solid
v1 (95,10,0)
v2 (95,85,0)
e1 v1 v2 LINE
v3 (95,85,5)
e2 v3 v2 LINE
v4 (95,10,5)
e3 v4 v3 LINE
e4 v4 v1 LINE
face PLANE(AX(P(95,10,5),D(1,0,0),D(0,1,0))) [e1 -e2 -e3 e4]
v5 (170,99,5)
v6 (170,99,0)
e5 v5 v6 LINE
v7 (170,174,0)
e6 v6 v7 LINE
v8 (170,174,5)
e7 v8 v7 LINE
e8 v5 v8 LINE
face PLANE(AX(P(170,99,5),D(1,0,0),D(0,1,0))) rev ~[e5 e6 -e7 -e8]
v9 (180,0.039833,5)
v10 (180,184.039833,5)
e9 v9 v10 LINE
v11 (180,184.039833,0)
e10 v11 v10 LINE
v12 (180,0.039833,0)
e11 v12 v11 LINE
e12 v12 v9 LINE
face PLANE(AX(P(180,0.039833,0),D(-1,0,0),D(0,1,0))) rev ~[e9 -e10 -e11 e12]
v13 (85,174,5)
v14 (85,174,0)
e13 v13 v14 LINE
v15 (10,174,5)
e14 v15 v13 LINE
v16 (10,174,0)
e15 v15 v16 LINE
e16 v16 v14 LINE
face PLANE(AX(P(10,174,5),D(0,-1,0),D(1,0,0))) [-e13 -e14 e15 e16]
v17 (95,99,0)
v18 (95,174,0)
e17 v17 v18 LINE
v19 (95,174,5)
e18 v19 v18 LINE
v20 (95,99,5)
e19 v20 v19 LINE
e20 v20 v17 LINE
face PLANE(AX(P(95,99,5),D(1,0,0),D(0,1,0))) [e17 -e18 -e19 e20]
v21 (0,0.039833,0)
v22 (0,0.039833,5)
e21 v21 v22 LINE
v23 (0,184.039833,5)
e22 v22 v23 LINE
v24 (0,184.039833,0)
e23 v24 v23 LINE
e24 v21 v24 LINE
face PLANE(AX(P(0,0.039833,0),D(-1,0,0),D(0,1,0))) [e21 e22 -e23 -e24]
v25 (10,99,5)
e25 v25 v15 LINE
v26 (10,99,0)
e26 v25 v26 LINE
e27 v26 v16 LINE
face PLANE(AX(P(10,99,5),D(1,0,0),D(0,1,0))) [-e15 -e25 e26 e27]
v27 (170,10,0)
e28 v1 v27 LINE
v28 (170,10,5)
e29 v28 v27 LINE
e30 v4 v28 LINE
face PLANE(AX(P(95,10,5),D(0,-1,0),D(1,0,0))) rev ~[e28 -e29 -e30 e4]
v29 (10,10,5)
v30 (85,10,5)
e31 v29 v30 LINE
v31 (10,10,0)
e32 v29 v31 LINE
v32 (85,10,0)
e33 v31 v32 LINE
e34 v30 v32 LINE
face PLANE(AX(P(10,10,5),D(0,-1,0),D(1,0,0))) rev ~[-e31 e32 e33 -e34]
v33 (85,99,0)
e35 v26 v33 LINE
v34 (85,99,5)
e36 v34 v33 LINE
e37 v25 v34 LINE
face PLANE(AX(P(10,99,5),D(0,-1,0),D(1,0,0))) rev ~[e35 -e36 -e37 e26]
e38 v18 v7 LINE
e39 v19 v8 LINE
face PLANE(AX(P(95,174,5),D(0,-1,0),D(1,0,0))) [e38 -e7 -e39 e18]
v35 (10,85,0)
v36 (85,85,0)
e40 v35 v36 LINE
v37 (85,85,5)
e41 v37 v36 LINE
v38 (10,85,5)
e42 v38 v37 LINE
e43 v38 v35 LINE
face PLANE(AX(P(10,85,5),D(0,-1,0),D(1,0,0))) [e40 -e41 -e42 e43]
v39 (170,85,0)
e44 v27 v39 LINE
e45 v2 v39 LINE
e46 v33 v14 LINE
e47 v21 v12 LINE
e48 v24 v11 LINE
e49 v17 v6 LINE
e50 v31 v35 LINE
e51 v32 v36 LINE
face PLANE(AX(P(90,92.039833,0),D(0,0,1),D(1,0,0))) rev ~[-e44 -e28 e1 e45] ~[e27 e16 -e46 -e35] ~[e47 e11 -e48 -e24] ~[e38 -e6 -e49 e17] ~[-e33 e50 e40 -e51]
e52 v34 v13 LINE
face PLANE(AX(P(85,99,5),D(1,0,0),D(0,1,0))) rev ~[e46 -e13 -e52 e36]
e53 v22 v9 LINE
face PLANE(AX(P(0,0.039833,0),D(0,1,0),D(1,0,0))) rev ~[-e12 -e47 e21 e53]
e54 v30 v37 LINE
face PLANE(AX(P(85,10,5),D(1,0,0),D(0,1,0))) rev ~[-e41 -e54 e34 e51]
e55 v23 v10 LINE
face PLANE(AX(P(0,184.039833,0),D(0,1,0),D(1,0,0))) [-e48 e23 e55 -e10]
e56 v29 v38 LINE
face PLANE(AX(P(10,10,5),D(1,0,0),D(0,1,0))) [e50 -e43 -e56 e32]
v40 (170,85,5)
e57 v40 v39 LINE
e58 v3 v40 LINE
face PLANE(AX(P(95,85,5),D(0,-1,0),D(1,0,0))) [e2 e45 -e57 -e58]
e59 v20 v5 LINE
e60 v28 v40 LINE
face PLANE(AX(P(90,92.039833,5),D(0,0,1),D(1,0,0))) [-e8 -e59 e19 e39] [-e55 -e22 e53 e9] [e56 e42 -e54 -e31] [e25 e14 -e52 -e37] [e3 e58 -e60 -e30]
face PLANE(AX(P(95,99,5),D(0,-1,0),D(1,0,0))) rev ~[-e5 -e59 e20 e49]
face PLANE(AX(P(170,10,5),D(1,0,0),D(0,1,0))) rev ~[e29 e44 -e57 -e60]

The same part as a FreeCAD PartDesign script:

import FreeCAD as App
import Part
import Sketcher

V = App.Vector
Q = App.Units.Quantity

doc = App.newDocument("Part")
body = doc.addObject("PartDesign::Body", "Body")

# Sketch on XY plane
sketch1 = doc.addObject("Sketcher::SketchObject", "Sketch")
body.addObject(sketch1)
sketch1.AttachmentSupport = (doc.XY_Plane, [""])
sketch1.MapMode = "FlatFace"
sketch1.addGeometry(Part.LineSegment(V(0, 184, 0), V(0, 0, 0)), False)
sketch1.addGeometry(Part.LineSegment(V(0, 0, 0), V(180, 0, 0)), False)
sketch1.addGeometry(Part.LineSegment(V(180, 0, 0), V(180, 184, 0)), False)
sketch1.addGeometry(Part.LineSegment(V(180, 184, 0), V(0, 184, 0)), False)
sketch1.addConstraint(Sketcher.Constraint("Coincident", 0, 2, 1, 1))
sketch1.addConstraint(Sketcher.Constraint("Coincident", 1, 2, 2, 1))
sketch1.addConstraint(Sketcher.Constraint("Coincident", 2, 2, 3, 1))
sketch1.addConstraint(Sketcher.Constraint("Coincident", 3, 2, 0, 1))
sketch1.addConstraint(Sketcher.Constraint("Vertical", 0))
sketch1.addConstraint(Sketcher.Constraint("Horizontal", 1))
sketch1.addConstraint(Sketcher.Constraint("Vertical", 2))
sketch1.addConstraint(Sketcher.Constraint("Horizontal", 3))
sketch1.addConstraint(Sketcher.Constraint("PointOnObject", 0, 2, -2))
sketch1.addConstraint(Sketcher.Constraint("DistanceX", 1, 1, 1, 2, Q("180 mm")))
sketch1.addConstraint(Sketcher.Constraint("DistanceY", 0, 2, 0, 1, Q("184 mm")))
sketch1.addConstraint(Sketcher.Constraint("DistanceY", -1, 1, 0, 2, Q("0.039833 mm")))
pad1 = doc.addObject("PartDesign::Pad", "Pad")
body.addObject(pad1)
pad1.Profile = sketch1
pad1.Length = 5

# Sketch on XY plane
sketch2 = doc.addObject("Sketcher::SketchObject", "Sketch001")
body.addObject(sketch2)
sketch2.AttachmentSupport = (doc.XY_Plane, [""])
sketch2.MapMode = "FlatFace"
sketch2.AttachmentOffset = App.Placement(V(0, 0, 5), App.Rotation())
sketch2.addGeometry(Part.LineSegment(V(10, 174, 0), V(10, 99, 0)), False)
sketch2.addGeometry(Part.LineSegment(V(10, 99, 0), V(85, 99, 0)), False)
sketch2.addGeometry(Part.LineSegment(V(85, 99, 0), V(85, 174, 0)), False)
sketch2.addGeometry(Part.LineSegment(V(85, 174, 0), V(10, 174, 0)), False)
sketch2.addConstraint(Sketcher.Constraint("Coincident", 0, 2, 1, 1))
sketch2.addConstraint(Sketcher.Constraint("Coincident", 1, 2, 2, 1))
sketch2.addConstraint(Sketcher.Constraint("Coincident", 2, 2, 3, 1))
sketch2.addConstraint(Sketcher.Constraint("Coincident", 3, 2, 0, 1))
sketch2.addConstraint(Sketcher.Constraint("Vertical", 0))
sketch2.addConstraint(Sketcher.Constraint("Horizontal", 1))
sketch2.addConstraint(Sketcher.Constraint("Vertical", 2))
sketch2.addConstraint(Sketcher.Constraint("Horizontal", 3))
sketch2.addConstraint(Sketcher.Constraint("Equal", 3, 0))
sketch2.addConstraint(Sketcher.Constraint("DistanceX", 1, 1, 1, 2, Q("75 mm")))
sketch2.addConstraint(Sketcher.Constraint("DistanceX", -1, 1, 0, 2, Q("10 mm")))
sketch2.addConstraint(Sketcher.Constraint("DistanceY", -1, 1, 0, 2, Q("99 mm")))
pocket1 = doc.addObject("PartDesign::Pocket", "Pocket")
body.addObject(pocket1)
pocket1.Profile = sketch2
pocket1.Length = 5

# Sketch on XY plane
sketch3 = doc.addObject("Sketcher::SketchObject", "Sketch002")
body.addObject(sketch3)
sketch3.AttachmentSupport = (doc.XY_Plane, [""])
sketch3.MapMode = "FlatFace"
sketch3.AttachmentOffset = App.Placement(V(0, 0, 5), App.Rotation())
sketch3.addGeometry(Part.LineSegment(V(95, 174, 0), V(95, 99, 0)), False)
sketch3.addGeometry(Part.LineSegment(V(95, 99, 0), V(170, 99, 0)), False)
sketch3.addGeometry(Part.LineSegment(V(170, 99, 0), V(170, 174, 0)), False)
sketch3.addGeometry(Part.LineSegment(V(170, 174, 0), V(95, 174, 0)), False)
sketch3.addConstraint(Sketcher.Constraint("Coincident", 0, 2, 1, 1))
sketch3.addConstraint(Sketcher.Constraint("Coincident", 1, 2, 2, 1))
sketch3.addConstraint(Sketcher.Constraint("Coincident", 2, 2, 3, 1))
sketch3.addConstraint(Sketcher.Constraint("Coincident", 3, 2, 0, 1))
sketch3.addConstraint(Sketcher.Constraint("Vertical", 0))
sketch3.addConstraint(Sketcher.Constraint("Horizontal", 1))
sketch3.addConstraint(Sketcher.Constraint("Vertical", 2))
sketch3.addConstraint(Sketcher.Constraint("Horizontal", 3))
sketch3.addConstraint(Sketcher.Constraint("Equal", 3, 0))
sketch3.addConstraint(Sketcher.Constraint("DistanceX", 1, 1, 1, 2, Q("75 mm")))
sketch3.addConstraint(Sketcher.Constraint("DistanceX", -1, 1, 0, 2, Q("95 mm")))
sketch3.addConstraint(Sketcher.Constraint("DistanceY", -1, 1, 0, 2, Q("99 mm")))
pocket2 = doc.addObject("PartDesign::Pocket", "Pocket001")
body.addObject(pocket2)
pocket2.Profile = sketch3
pocket2.Length = 5
doc.recompute()

linearpattern = doc.addObject("PartDesign::LinearPattern", "LinearPattern")
body.addObject(linearpattern)
linearpattern.Originals = [pocket1, pocket2]
linearpattern.Direction = (doc.Y_Axis, [""])
linearpattern.Mode = "offset"
linearpattern.Offset = 89
linearpattern.Occurrences = 2
linearpattern.Reversed = True
body.Tip = linearpattern

doc.recompute()
